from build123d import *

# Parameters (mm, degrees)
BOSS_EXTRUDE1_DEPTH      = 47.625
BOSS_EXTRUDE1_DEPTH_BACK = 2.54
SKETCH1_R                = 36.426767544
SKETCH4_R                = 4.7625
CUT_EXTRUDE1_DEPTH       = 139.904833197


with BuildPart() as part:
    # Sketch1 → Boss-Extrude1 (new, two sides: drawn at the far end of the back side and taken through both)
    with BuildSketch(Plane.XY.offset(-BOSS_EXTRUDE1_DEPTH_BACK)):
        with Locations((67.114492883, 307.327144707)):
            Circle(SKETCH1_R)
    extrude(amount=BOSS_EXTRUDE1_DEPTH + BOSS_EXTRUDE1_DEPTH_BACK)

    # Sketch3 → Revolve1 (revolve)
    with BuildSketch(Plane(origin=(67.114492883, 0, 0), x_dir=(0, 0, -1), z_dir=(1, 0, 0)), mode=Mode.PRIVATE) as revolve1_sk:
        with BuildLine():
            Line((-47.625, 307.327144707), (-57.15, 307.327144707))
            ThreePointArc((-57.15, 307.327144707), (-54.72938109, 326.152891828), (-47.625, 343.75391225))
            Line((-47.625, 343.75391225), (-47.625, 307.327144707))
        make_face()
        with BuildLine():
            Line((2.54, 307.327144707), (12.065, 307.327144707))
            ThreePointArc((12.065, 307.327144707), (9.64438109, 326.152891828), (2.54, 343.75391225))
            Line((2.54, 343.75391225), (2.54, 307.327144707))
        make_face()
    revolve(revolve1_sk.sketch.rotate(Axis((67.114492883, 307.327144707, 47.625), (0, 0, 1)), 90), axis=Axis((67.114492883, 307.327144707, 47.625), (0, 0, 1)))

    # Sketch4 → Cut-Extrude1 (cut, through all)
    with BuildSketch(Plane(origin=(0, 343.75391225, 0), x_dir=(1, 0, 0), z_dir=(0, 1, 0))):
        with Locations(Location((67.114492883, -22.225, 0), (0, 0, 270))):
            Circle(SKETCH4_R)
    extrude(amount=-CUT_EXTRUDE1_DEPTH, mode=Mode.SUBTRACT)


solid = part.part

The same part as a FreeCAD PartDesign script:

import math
import FreeCAD as App
import Part
import Sketcher
from FreeCAD import Vector
Q = App.Units.Quantity

doc = App.newDocument("Part")
params = doc.addObject("Spreadsheet::Sheet", "Params")
for row, (alias, value) in enumerate([
    ("pad1_length", "1.875 in"),
    ("pad1_length2", "0.1 in"),
    ("sketch2_height", "0.375 in"),
    ("revolution_angle", "360 deg"),
    ("sketch3_diameter", "0.375 in"),
], start=1):
    params.set(f"A{row}", alias)
    params.set(f"B{row}", "=" + value)
    params.setAlias(f"B{row}", alias)

body = doc.addObject("PartDesign::Body", "Body")

# Sketch on XY plane
sketch1 = body.newObject("Sketcher::SketchObject", "Sketch")
sketch1.AttachmentSupport = (doc.getObject("XY_Plane"), [""])
sketch1.MapMode = "FlatFace"
sketch1.addGeometry(Part.Circle(Vector(67, 307, 0), Vector(0, 0, 1), 36), False)
sketch1.addConstraint(Sketcher.Constraint("Diameter", 0, Q("72.853535 mm")))
sketch1.addConstraint(Sketcher.Constraint("DistanceX", -1, 1, 0, 3, Q("67.114493 mm")))
sketch1.addConstraint(Sketcher.Constraint("DistanceY", -1, 1, 0, 3, Q("307.327145 mm")))
pad1 = body.newObject("PartDesign::Pad", "Pad")
pad1.Profile = sketch1
pad1.Type = "TwoLengths"
pad1.setExpression("Length", "Params.pad1_length")
pad1.setExpression("Length2", "Params.pad1_length2")

# Sketch on YZ plane
sketch2 = body.newObject("Sketcher::SketchObject", "Sketch001")
sketch2.AttachmentSupport = (doc.getObject("YZ_Plane"), [""])
sketch2.MapMode = "FlatFace"
sketch2.AttachmentOffset = App.Placement(Vector(0, 0, 67.114493), App.Rotation())
sketch2.addGeometry(Part.LineSegment(Vector(307, 57, 0), Vector(307, 48, 0)), False)
sketch2.addGeometry(Part.LineSegment(Vector(307, 48, 0), Vector(344, 48, 0)), False)
sketch2.addGeometry(Part.ArcOfCircle(Part.Circle(Vector(307, -17, 0), Vector(0, 0, 1), 74), math.radians(61), math.radians(90)), False)
sketch2.addGeometry(Part.LineSegment(Vector(307, -3, 0), Vector(307, -12, 0)), False)
sketch2.addGeometry(Part.ArcOfCircle(Part.Circle(Vector(307, 62, 0), Vector(0, 0, 1), 74), math.radians(-90), math.radians(-61)), False)
sketch2.addGeometry(Part.LineSegment(Vector(344, -3, 0), Vector(307, -3, 0)), False)
sketch2.addGeometry(Part.LineSegment(Vector(307, -17, 0), Vector(307, 62, 0)), True)  # axis
sketch2.addConstraint(Sketcher.Constraint("Coincident", 0, 2, 1, 1))
sketch2.addConstraint(Sketcher.Constraint("Coincident", 1, 2, 2, 1))
sketch2.addConstraint(Sketcher.Constraint("Coincident", 2, 2, 0, 1))
sketch2.addConstraint(Sketcher.Constraint("Coincident", 3, 2, 4, 1))
sketch2.addConstraint(Sketcher.Constraint("Coincident", 4, 2, 5, 1))
sketch2.addConstraint(Sketcher.Constraint("Coincident", 5, 2, 3, 1))
sketch2.addConstraint(Sketcher.Constraint("Vertical", 0))
sketch2.addConstraint(Sketcher.Constraint("Horizontal", 1))
sketch2.addConstraint(Sketcher.Constraint("Vertical", 3))
sketch2.addConstraint(Sketcher.Constraint("Horizontal", 5))
sketch2.addConstraint(Sketcher.Constraint("Vertical", 6))
sketch2.addConstraint(Sketcher.Constraint("Coincident", 6, 1, 2, 3))
sketch2.addConstraint(Sketcher.Constraint("Coincident", 6, 2, 4, 3))
sketch2.addConstraint(Sketcher.Constraint("Equal", 2, 4))
sketch2.addConstraint(Sketcher.Constraint("Vertical", 4, 3, 0, 2))
sketch2.addConstraint(Sketcher.Constraint("Vertical", 2, 2, 3, 2))
sketch2.addConstraint(Sketcher.Constraint("Vertical", 1, 2, 4, 2))
sketch2.addConstraint(Sketcher.Constraint("DistanceY", 4, 2, -1, 1, Q("0.1 in")))
sketch2.addConstraint(Sketcher.Constraint("DistanceY", 0, 2, 0, 1, Q("0.375 in")))
sketch2.addConstraint(Sketcher.Constraint("DistanceY", -1, 1, 2, 2, Q("2.25 in")))
sketch2.addConstraint(Sketcher.Constraint("Radius", 2, Q("74.416536 mm")))
sketch2.addConstraint(Sketcher.Constraint("DistanceX", -1, 1, 2, 3, Q("307.327145 mm")))
sketch2.setExpression("Constraints[18]", "Params.sketch2_height")
revolution = body.newObject("PartDesign::Revolution", "Revolution")
revolution.Profile = sketch2
revolution.ReferenceAxis = (sketch2, ["Axis0"])
revolution.setExpression("Angle", "Params.revolution_angle")

# Sketch on XZ plane
sketch3 = body.newObject("Sketcher::SketchObject", "Sketch002")
sketch3.AttachmentSupport = (doc.getObject("XZ_Plane"), [""])
sketch3.MapMode = "FlatFace"
sketch3.AttachmentOffset = App.Placement(Vector(0, 0, -343.753912), App.Rotation())
sketch3.addGeometry(Part.Circle(Vector(67.1, 22.2, 0), Vector(0, 0, 1), 4.8), False)
sketch3.addConstraint(Sketcher.Constraint("Diameter", 0, Q("0.375 in")))
sketch3.addConstraint(Sketcher.Constraint("DistanceY", -1, 1, 0, 3, Q("0.875 in")))
sketch3.addConstraint(Sketcher.Constraint("DistanceX", -1, 1, 0, 3, Q("67.114493 mm")))
sketch3.setExpression("Constraints[0]", "Params.sketch3_diameter")
pocket1 = body.newObject("PartDesign::Pocket", "Pocket")
pocket1.Profile = sketch3
pocket1.Type = "ThroughAll"
pocket1.Reversed = True

doc.recompute()
